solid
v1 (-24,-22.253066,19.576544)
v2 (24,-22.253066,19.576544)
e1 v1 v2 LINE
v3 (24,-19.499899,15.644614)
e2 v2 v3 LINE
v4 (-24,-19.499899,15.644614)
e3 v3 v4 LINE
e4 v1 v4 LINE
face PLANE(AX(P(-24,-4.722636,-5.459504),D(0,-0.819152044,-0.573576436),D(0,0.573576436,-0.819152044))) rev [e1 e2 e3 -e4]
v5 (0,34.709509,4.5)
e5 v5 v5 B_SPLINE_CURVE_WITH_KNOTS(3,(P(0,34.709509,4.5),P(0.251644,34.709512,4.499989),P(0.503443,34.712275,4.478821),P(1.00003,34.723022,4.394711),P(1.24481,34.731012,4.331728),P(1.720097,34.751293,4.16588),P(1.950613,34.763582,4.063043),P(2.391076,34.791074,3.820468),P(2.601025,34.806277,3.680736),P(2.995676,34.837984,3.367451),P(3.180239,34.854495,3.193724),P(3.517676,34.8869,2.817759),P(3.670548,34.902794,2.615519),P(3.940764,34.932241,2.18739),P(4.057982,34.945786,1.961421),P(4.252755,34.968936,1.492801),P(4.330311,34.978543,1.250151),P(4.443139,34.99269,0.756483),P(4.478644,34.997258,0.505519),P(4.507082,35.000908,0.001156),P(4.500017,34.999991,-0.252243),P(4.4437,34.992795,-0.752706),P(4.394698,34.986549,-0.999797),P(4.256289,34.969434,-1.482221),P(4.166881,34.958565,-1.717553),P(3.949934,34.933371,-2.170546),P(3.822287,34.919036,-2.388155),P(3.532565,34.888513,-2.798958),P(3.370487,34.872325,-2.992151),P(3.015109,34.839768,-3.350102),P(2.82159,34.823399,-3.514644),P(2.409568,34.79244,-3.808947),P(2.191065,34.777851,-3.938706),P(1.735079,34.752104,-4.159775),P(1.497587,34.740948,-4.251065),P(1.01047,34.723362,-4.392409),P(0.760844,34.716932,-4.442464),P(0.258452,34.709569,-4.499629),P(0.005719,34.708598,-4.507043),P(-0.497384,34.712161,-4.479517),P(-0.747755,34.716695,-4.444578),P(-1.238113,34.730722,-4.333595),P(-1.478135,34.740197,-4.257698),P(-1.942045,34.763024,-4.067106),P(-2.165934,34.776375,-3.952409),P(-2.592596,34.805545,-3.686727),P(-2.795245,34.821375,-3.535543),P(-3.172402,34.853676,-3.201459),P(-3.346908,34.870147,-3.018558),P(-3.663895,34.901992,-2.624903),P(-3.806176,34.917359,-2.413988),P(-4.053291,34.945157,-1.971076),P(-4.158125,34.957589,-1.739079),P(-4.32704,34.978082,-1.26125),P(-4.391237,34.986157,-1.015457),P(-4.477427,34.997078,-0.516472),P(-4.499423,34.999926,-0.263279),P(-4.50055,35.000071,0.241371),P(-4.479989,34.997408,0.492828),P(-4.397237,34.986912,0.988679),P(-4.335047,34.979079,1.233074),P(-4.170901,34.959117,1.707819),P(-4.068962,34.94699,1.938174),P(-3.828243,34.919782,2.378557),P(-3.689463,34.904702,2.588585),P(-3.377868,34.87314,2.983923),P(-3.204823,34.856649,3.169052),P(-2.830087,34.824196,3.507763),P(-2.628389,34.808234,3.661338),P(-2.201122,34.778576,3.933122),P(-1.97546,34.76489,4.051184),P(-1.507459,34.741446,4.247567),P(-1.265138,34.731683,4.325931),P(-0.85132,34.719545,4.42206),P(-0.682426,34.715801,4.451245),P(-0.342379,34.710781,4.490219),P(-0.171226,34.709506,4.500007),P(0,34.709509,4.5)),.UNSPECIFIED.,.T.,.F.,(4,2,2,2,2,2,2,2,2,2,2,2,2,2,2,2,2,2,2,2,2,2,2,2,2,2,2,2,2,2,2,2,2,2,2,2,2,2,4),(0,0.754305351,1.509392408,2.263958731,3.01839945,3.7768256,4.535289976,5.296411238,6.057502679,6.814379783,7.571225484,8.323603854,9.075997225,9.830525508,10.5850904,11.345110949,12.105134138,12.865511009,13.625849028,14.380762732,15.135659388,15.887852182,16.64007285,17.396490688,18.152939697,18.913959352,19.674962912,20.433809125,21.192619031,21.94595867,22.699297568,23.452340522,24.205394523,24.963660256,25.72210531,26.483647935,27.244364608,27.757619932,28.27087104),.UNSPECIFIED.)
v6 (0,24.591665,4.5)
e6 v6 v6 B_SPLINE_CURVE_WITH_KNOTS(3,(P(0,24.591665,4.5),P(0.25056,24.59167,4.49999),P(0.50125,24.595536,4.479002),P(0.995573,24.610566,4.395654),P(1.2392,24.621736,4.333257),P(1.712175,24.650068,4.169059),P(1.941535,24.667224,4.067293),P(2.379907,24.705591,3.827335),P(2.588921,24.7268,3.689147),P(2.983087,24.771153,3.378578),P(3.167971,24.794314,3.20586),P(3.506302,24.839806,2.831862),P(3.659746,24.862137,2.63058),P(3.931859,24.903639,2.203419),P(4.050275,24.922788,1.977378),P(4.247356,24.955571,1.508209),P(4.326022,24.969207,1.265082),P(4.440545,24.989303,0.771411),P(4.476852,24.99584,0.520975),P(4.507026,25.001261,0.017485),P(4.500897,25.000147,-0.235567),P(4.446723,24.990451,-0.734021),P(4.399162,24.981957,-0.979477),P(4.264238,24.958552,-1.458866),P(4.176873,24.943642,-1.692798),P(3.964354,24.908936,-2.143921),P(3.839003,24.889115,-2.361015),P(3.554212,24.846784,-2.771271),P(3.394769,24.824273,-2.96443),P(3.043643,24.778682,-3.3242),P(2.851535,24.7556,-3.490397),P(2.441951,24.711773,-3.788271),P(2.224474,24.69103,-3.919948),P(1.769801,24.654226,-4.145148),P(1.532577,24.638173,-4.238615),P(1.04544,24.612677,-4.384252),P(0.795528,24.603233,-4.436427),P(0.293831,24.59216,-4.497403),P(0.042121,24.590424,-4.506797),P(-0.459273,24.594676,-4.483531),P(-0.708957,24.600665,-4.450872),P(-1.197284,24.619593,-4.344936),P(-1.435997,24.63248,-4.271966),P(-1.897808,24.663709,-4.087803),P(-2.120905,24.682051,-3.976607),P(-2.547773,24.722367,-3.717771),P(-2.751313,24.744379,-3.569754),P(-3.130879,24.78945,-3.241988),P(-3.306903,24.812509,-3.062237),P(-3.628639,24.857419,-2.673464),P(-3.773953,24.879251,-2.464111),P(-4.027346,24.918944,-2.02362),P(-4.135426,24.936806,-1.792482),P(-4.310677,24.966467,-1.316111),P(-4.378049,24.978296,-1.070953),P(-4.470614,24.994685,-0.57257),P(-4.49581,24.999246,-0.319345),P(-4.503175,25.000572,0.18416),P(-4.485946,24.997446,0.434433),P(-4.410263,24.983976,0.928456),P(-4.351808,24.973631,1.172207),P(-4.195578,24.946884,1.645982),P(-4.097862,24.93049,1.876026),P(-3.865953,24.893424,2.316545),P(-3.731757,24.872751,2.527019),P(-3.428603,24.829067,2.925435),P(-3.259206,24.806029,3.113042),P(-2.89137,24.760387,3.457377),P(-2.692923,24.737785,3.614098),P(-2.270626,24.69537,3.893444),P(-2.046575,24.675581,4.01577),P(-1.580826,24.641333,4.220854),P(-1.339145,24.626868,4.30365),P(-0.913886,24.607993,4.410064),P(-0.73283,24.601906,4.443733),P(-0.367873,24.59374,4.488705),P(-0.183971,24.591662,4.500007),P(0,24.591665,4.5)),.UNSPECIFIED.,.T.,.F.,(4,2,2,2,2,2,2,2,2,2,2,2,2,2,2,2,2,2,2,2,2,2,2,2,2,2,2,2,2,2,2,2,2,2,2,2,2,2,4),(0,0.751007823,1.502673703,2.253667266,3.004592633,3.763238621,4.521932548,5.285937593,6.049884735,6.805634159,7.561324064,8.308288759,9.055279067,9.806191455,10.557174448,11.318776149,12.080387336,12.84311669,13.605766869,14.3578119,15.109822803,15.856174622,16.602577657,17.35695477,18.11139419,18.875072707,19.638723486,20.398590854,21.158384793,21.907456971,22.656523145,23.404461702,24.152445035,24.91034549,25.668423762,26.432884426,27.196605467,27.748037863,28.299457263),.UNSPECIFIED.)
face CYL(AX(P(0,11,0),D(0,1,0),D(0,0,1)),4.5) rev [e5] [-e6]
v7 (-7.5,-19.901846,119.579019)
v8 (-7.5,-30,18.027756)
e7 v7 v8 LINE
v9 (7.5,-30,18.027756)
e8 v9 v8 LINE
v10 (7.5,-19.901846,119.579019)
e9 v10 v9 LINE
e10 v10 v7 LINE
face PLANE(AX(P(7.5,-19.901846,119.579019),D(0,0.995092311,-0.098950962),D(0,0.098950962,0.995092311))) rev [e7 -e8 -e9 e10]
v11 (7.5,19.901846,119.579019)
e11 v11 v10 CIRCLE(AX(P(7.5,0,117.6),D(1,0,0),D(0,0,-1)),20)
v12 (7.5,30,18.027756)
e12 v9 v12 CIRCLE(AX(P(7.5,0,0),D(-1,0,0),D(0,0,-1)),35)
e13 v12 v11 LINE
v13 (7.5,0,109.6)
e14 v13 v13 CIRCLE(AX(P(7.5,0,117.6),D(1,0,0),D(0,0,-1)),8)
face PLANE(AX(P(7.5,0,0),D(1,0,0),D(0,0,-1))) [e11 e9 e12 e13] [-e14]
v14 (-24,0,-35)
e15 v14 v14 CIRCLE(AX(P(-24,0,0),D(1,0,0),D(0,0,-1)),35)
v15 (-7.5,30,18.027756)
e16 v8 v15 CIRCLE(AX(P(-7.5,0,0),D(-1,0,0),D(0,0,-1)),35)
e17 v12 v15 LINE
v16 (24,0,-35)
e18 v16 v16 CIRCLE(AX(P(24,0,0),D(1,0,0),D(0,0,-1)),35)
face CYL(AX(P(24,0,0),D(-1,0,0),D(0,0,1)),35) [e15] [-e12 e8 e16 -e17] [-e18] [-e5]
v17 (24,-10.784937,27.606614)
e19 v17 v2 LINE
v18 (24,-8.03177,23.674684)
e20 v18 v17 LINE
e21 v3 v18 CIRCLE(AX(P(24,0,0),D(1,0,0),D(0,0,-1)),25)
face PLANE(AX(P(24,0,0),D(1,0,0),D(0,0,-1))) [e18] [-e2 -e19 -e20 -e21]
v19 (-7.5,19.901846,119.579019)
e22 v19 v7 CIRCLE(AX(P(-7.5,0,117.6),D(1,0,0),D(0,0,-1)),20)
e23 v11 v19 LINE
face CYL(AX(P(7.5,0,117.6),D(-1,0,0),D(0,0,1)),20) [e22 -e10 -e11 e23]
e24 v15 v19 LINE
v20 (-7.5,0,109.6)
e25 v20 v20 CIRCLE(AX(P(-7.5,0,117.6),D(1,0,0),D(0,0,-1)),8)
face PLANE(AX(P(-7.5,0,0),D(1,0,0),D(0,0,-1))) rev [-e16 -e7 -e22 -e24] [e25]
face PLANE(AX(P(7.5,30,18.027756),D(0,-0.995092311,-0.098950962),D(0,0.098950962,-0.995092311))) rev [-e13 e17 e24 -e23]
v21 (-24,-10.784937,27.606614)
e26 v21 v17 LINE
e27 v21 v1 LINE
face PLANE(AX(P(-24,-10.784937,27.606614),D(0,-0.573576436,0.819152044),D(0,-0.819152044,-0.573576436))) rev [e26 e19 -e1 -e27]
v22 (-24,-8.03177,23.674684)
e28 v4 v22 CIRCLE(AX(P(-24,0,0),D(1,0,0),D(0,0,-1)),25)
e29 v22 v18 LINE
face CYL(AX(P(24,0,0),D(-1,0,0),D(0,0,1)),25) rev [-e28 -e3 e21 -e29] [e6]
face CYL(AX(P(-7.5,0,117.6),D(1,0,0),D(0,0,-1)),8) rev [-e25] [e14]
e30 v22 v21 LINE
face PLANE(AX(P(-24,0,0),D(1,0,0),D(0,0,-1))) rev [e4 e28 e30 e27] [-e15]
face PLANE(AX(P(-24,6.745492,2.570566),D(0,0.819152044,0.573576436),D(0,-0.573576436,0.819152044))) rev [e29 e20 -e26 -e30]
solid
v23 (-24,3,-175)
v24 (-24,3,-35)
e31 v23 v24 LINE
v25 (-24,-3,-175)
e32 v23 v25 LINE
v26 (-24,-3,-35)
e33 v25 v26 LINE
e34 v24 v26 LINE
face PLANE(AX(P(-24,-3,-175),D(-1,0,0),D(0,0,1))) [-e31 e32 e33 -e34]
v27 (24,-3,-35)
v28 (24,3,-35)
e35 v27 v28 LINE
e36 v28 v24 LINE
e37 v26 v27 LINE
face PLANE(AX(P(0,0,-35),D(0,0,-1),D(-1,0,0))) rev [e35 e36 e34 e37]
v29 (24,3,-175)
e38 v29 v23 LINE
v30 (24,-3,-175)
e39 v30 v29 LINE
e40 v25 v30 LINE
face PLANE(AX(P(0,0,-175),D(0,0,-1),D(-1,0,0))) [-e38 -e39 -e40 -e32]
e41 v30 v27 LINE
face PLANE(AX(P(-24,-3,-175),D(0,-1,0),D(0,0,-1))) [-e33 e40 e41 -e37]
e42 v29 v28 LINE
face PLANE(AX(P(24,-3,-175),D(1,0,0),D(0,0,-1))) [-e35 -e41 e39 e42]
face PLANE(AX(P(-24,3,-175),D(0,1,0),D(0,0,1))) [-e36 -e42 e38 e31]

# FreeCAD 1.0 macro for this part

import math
import FreeCAD as App
import Part
import Sketcher
Q = App.Units.Quantity


def add_polygon(sketch, points):
    """Adds a closed chain of lines whose ends are joined by coincident constraints."""
    first, n = sketch.GeometryCount, len(points)
    for a, b in zip(points, points[1:] + points[:1]):
        sketch.addGeometry(Part.LineSegment(App.Vector(*a, 0), App.Vector(*b, 0)), False)
    for i in range(n):
        sketch.addConstraint(Sketcher.Constraint("Coincident", first + i, 2, first + (i + 1) % n, 1))

doc = App.newDocument("Part")
body = doc.addObject("PartDesign::Body", "Body")

sketch1 = body.newObject("Sketcher::SketchObject", "Sketch")
sketch1.AttachmentSupport = (doc.getObject("YZ_Plane"), [""])
sketch1.MapMode = "FlatFace"
sketch1.addGeometry([
    Part.Circle(App.Vector(0, 0, 0), App.Vector(0, 0, 1), 35),
    Part.Circle(App.Vector(0, 0, 0), App.Vector(0, 0, 1), 25),
], False)
sketch1.addConstraint([
    Sketcher.Constraint("Coincident", 0, 3, -1, 1),
    Sketcher.Constraint("Coincident", 1, 3, -1, 1),
    Sketcher.Constraint("Diameter", 0, 70.0),
    Sketcher.Constraint("Diameter", 1, 50.0),
])
pad1 = body.newObject("PartDesign::Pad", "Pad")
pad1.Profile = sketch1
pad1.Length = 48
pad1.Midplane = True

sketch2 = body.newObject("Sketcher::SketchObject", "Sketch001")
sketch2.AttachmentSupport = (doc.getObject("YZ_Plane"), [""])
sketch2.MapMode = "FlatFace"
sketch2.addGeometry([
    Part.LineSegment(App.Vector(30, 18, 0), App.Vector(20, 120, 0)),
    Part.ArcOfCircle(Part.Circle(App.Vector(0, 118, 0), App.Vector(0, 0, 1), 20), math.radians(6), math.radians(174)),
    Part.LineSegment(App.Vector(-20, 120, 0), App.Vector(-30, 18, 0)),
    Part.ArcOfCircle(Part.Circle(App.Vector(0, 0, 0), App.Vector(0, 0, 1), 35), math.radians(31), math.radians(149)),
], False)
sketch2.addConstraint([
    Sketcher.Constraint("Tangent", 0, 2, 1, 1),
    Sketcher.Constraint("Tangent", 1, 2, 2, 1),
    Sketcher.Constraint("Coincident", 2, 2, 3, 2),
    Sketcher.Constraint("Coincident", 3, 1, 0, 1),
    Sketcher.Constraint("Coincident", 3, 3, -1, 1),
    Sketcher.Constraint("Symmetric", 0, 2, 1, 2, -2),
    Sketcher.Constraint("Radius", 1, 20.0),
    Sketcher.Constraint("Radius", 3, 35.0),
    Sketcher.Constraint("DistanceX", 2, 2, -1, 1, 30.0),
    Sketcher.Constraint("DistanceY", -1, 1, 1, 3, 117.6),
])
pad2 = body.newObject("PartDesign::Pad", "Pad001")
pad2.Profile = sketch2
pad2.Length = 15
pad2.Midplane = True

sketch3 = body.newObject("Sketcher::SketchObject", "Sketch002")
sketch3.AttachmentSupport = (doc.getObject("YZ_Plane"), [""])
sketch3.MapMode = "FlatFace"
sketch3.AttachmentOffset = App.Placement(App.Vector(0, 0, 7.5), App.Rotation())
sketch3.addGeometry(Part.Circle(App.Vector(0, 118, 0), App.Vector(0, 0, 1), 8), False)
sketch3.addConstraint([
    Sketcher.Constraint("PointOnObject", 0, 3, -2),
    Sketcher.Constraint("Diameter", 0, 16.0),
    Sketcher.Constraint("DistanceY", -1, 1, 0, 3, 117.6),
])
pocket1 = body.newObject("PartDesign::Pocket", "Pocket")
pocket1.Profile = sketch3
pocket1.Length = 15

sketch4 = body.newObject("Sketcher::SketchObject", "Sketch003")
sketch4.AttachmentSupport = (doc.getObject("YZ_Plane"), [""])
sketch4.MapMode = "FlatFace"
sketch4.AttachmentOffset = App.Placement(App.Vector(0, 0, 24), App.Rotation())
add_polygon(sketch4, [(7, 3), (-11, 28), (-22, 20), (-5, -5)])
sketch4.addConstraint([
    Sketcher.Constraint("Perpendicular", 0, 1),
    Sketcher.Constraint("Perpendicular", 1, 2),
    Sketcher.Constraint("Perpendicular", 2, 3),
    Sketcher.Constraint("Angle", 0, Q("125 deg")),
    Sketcher.Constraint("Distance", 1, 14.0),
    Sketcher.Constraint("DistanceX", 0, 2, 2, 2, 6.062301),
    Sketcher.Constraint("DistanceX", 0, 2, -1, 1, 10.784937),
    Sketcher.Constraint("DistanceY", -1, 1, 0, 2, 27.606614),
])
pocket2 = body.newObject("PartDesign::Pocket", "Pocket001")
pocket2.Profile = sketch4
pocket2.Type = "ThroughAll"

sketch5 = body.newObject("Sketcher::SketchObject", "Sketch004")
sketch5.AttachmentSupport = (doc.getObject("XZ_Plane"), [""])
sketch5.MapMode = "FlatFace"
sketch5.AttachmentOffset = App.Placement(App.Vector(0, 0, -35), App.Rotation())
sketch5.addGeometry(Part.Circle(App.Vector(0, 0, 0), App.Vector(0, 0, 1), 4.5), False)
sketch5.addConstraint([
    Sketcher.Constraint("Coincident", 0, 3, -1, 1),
    Sketcher.Constraint("Diameter", 0, 9.0),
])
pocket3 = body.newObject("PartDesign::Pocket", "Pocket002")
pocket3.Profile = sketch5
pocket3.Length = 24
pocket3.Reversed = True
body2 = doc.addObject("PartDesign::Body", "Body001")

sketch6 = body2.newObject("Sketcher::SketchObject", "Sketch005")
sketch6.AttachmentSupport = (doc.getObject("XY_Plane001"), [""])
sketch6.MapMode = "FlatFace"
sketch6.AttachmentOffset = App.Placement(App.Vector(0, 0, -35), App.Rotation())
add_polygon(sketch6, [(-24, 3), (-24, -3), (24, -3), (24, 3)])
sketch6.addConstraint([
    Sketcher.Constraint("Vertical", 0),
    Sketcher.Constraint("Horizontal", 1),
    Sketcher.Constraint("Vertical", 2),
    Sketcher.Constraint("Horizontal", 3),
    Sketcher.Constraint("Symmetric", 0, 2, 2, 2, -1, 1),
    Sketcher.Constraint("DistanceX", 1, 1, 1, 2, 48.0),
    Sketcher.Constraint("DistanceY", 0, 2, 0, 1, 6.0),
])
pad3 = body2.newObject("PartDesign::Pad", "Pad002")
pad3.Profile = sketch6
pad3.Length = 140
pad3.Reversed = True

doc.recompute()
